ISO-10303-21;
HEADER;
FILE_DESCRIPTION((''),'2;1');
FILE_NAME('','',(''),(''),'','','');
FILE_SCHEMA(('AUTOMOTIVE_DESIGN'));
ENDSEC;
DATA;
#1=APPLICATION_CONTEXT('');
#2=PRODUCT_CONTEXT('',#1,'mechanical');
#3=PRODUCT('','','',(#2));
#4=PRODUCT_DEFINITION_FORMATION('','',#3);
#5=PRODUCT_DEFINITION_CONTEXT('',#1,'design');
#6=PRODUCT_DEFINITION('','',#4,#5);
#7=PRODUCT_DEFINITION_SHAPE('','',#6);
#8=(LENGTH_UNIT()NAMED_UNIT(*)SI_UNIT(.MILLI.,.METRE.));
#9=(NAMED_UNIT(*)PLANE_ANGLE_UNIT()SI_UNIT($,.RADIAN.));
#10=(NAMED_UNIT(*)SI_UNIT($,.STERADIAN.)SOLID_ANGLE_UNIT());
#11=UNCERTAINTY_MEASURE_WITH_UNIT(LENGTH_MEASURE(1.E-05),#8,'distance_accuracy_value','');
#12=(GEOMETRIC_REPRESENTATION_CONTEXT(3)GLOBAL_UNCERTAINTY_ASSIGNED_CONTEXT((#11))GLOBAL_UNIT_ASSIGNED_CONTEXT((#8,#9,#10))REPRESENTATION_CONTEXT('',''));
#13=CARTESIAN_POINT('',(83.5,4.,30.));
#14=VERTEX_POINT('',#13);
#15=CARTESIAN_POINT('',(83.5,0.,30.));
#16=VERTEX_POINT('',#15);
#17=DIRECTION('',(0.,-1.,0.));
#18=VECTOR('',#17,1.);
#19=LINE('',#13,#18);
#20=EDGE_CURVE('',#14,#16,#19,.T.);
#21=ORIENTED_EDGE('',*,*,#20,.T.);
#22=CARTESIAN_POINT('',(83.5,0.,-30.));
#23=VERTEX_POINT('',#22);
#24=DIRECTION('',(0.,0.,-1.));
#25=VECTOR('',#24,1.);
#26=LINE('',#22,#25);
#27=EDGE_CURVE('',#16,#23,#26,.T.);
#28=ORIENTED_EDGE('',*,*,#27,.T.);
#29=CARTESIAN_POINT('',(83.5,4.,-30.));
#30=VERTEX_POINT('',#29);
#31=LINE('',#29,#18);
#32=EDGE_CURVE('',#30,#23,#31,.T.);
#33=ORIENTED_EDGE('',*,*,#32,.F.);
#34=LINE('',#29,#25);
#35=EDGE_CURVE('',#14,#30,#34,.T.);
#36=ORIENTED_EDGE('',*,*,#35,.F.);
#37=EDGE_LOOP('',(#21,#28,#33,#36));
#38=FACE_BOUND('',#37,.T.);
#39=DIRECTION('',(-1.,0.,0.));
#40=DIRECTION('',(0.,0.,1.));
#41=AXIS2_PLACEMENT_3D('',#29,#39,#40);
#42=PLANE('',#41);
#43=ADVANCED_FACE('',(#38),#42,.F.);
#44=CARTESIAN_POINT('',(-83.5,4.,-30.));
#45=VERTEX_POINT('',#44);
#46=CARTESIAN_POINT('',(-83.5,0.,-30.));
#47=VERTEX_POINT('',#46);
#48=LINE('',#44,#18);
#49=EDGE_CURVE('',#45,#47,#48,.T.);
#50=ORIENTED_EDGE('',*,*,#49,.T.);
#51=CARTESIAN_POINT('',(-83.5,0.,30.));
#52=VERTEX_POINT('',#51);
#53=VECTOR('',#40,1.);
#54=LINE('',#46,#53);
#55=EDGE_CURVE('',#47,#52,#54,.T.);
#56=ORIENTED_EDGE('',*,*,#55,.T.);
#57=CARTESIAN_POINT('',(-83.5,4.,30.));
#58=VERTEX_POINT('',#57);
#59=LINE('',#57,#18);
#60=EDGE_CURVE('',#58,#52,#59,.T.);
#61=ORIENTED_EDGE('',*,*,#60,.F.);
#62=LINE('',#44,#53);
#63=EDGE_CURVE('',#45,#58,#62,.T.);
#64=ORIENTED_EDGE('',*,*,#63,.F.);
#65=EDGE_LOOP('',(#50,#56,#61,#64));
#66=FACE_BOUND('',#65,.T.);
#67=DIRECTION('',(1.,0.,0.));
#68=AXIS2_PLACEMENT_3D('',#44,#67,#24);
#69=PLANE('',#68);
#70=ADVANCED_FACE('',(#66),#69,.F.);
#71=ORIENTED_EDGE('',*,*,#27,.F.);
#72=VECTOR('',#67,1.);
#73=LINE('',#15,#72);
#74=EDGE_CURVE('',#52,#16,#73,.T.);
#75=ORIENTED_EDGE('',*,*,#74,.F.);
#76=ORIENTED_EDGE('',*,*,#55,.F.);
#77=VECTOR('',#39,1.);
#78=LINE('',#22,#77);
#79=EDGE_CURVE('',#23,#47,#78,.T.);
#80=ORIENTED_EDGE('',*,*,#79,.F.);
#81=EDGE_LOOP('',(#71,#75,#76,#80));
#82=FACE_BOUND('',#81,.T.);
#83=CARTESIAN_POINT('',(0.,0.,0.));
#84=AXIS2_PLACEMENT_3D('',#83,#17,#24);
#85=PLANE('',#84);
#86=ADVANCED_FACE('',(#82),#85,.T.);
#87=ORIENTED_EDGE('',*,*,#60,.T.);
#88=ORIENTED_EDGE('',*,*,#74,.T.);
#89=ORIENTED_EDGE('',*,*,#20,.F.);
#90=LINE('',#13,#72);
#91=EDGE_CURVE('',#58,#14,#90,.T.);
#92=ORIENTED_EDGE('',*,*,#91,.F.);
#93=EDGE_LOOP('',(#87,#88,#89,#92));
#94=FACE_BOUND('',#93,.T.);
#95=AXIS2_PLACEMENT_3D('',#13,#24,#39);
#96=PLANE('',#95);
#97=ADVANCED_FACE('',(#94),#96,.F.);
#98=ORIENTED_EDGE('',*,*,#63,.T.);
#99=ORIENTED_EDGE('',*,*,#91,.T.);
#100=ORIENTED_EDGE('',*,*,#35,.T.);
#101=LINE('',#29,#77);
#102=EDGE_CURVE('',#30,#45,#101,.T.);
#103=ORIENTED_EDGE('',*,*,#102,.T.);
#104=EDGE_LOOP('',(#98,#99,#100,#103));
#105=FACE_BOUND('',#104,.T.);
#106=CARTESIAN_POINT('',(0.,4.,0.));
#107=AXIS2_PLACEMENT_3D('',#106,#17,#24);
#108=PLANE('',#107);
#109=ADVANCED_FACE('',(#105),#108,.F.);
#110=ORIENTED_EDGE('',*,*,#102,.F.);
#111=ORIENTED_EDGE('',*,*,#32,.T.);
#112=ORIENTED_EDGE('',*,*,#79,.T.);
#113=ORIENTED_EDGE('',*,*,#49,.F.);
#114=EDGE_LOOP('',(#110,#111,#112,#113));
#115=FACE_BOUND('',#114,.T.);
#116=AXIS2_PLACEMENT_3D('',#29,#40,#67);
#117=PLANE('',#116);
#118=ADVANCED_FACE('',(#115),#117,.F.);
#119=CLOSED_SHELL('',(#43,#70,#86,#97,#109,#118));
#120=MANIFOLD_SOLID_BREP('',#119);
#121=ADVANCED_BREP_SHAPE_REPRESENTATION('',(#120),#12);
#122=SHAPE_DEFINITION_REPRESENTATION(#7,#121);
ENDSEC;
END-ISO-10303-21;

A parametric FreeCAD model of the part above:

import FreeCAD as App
import Part
import Sketcher
from FreeCAD import Vector
Q = App.Units.Quantity


def add_polygon(sketch, points):
    """Adds a closed chain of lines whose ends are joined by coincident constraints."""
    first, n = sketch.GeometryCount, len(points)
    for a, b in zip(points, points[1:] + points[:1]):
        sketch.addGeometry(Part.LineSegment(App.Vector(*a, 0), App.Vector(*b, 0)), False)
    for i in range(n):
        sketch.addConstraint(Sketcher.Constraint("Coincident", first + i, 2, first + (i + 1) % n, 1))

doc = App.newDocument("Part")
body = doc.addObject("PartDesign::Body", "Body")

sketch1 = body.newObject("Sketcher::SketchObject", "Sketch")
sketch1.AttachmentSupport = (doc.getObject("XZ_Plane"), [""])
sketch1.MapMode = "FlatFace"
add_polygon(sketch1, [(-83.5, -30), (-83.5, 30), (83.5, 30), (83.5, -30)])
sketch1.addConstraint([
    Sketcher.Constraint("Vertical", 0),
    Sketcher.Constraint("Horizontal", 1),
    Sketcher.Constraint("Vertical", 2),
    Sketcher.Constraint("Horizontal", 3),
    Sketcher.Constraint("Symmetric", 0, 2, 2, 2, -1, 1),
    Sketcher.Constraint("DistanceX", 1, 1, 1, 2, Q("167 mm")),
    Sketcher.Constraint("DistanceY", 0, 1, 0, 2, Q("60 mm")),
])
pad1 = body.newObject("PartDesign::Pad", "Pad")
pad1.Profile = sketch1
pad1.Length = 4
pad1.Reversed = True

doc.recompute()
